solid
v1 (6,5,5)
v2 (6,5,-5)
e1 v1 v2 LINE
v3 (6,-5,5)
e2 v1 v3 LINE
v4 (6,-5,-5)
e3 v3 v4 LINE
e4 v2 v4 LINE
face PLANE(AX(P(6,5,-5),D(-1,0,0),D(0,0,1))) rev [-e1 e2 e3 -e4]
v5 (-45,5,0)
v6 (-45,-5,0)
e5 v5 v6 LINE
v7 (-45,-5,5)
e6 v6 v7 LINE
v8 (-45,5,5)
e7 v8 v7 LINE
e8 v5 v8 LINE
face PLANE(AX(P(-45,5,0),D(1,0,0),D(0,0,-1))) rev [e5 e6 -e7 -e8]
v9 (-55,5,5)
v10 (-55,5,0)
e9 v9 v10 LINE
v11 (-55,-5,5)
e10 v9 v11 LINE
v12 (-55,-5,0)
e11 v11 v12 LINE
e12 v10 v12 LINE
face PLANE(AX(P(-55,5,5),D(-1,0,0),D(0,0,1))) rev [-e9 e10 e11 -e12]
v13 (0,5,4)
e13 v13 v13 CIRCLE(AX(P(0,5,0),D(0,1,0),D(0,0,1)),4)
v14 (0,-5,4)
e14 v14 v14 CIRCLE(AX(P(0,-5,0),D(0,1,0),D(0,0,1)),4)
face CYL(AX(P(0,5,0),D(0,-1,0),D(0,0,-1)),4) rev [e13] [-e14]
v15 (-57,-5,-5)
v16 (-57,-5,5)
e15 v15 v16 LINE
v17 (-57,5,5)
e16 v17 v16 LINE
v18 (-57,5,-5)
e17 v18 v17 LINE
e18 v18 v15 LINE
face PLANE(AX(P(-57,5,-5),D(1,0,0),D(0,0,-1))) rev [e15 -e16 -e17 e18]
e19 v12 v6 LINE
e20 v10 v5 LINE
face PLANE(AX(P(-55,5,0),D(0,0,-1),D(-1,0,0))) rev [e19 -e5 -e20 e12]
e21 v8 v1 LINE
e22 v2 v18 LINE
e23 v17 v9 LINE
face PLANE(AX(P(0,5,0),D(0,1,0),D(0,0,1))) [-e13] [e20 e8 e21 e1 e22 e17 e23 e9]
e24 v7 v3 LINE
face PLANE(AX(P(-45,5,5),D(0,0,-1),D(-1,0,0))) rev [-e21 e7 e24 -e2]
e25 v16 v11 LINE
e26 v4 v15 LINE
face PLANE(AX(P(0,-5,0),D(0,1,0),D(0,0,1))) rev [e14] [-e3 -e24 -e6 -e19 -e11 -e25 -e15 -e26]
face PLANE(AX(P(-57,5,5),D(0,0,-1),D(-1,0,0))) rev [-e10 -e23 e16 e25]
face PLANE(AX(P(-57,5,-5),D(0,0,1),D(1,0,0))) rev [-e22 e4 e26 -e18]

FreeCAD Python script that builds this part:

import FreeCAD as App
import Part
import Sketcher
Q = App.Units.Quantity

doc = App.newDocument("Part")
body = doc.addObject("PartDesign::Body", "Body")

# Sketch on XZ plane
sketch1 = body.newObject("Sketcher::SketchObject", "Sketch")
sketch1.AttachmentSupport = (doc.getObject("XZ_Plane"), [""])
sketch1.MapMode = "FlatFace"
sketch1.addGeometry([
    Part.LineSegment(App.Vector(-55, 5, 0), App.Vector(-55, 0, 0)),  # 0
    Part.LineSegment(App.Vector(-55, 0, 0), App.Vector(-45, 0, 0)),  # 1
    Part.LineSegment(App.Vector(-45, 0, 0), App.Vector(-45, 5, 0)),  # 2
    Part.LineSegment(App.Vector(-45, 5, 0), App.Vector(6, 5, 0)),  # 3
    Part.LineSegment(App.Vector(6, 5, 0), App.Vector(6, -5, 0)),  # 4
    Part.LineSegment(App.Vector(6, -5, 0), App.Vector(-57, -5, 0)),  # 5
    Part.LineSegment(App.Vector(-57, -5, 0), App.Vector(-57, 5, 0)),  # 6
    Part.LineSegment(App.Vector(-57, 5, 0), App.Vector(-55, 5, 0)),  # 7
    Part.Circle(App.Vector(0, 0, 0), App.Vector(0, 0, 1), 4),  # 8
], False)
sketch1.addConstraint([
    Sketcher.Constraint("Coincident", 0, 2, 1, 1),
    Sketcher.Constraint("Coincident", 1, 2, 2, 1),
    Sketcher.Constraint("Coincident", 2, 2, 3, 1),
    Sketcher.Constraint("Coincident", 3, 2, 4, 1),
    Sketcher.Constraint("Coincident", 4, 2, 5, 1),
    Sketcher.Constraint("Coincident", 5, 2, 6, 1),
    Sketcher.Constraint("Coincident", 6, 2, 7, 1),
    Sketcher.Constraint("Coincident", 7, 2, 0, 1),
    Sketcher.Constraint("Vertical", 0),
    Sketcher.Constraint("Horizontal", 1),
    Sketcher.Constraint("Vertical", 2),
    Sketcher.Constraint("Horizontal", 3),
    Sketcher.Constraint("Vertical", 4),
    Sketcher.Constraint("Horizontal", 5),
    Sketcher.Constraint("Vertical", 6),
    Sketcher.Constraint("Horizontal", 7),
    Sketcher.Constraint("Coincident", 8, 3, -1, 1),
    Sketcher.Constraint("PointOnObject", 0, 2, -1),
    Sketcher.Constraint("Horizontal", 3, 2, 6, 2),
    Sketcher.Constraint("Equal", 1, 4),
    Sketcher.Constraint("Diameter", 8, Q("8 mm")),
    Sketcher.Constraint("DistanceX", 1, 1, 1, 2, Q("10 mm")),
    Sketcher.Constraint("DistanceX", 3, 1, 3, 2, Q("51 mm")),
    Sketcher.Constraint("DistanceX", 5, 2, 5, 1, Q("63 mm")),
    Sketcher.Constraint("DistanceY", 0, 2, 0, 1, Q("5 mm")),
    Sketcher.Constraint("DistanceX", 0, 2, -1, 1, Q("55 mm")),
])
pad1 = body.newObject("PartDesign::Pad", "Pad")
pad1.Profile = sketch1
pad1.Length = 10
pad1.Midplane = True

doc.recompute()
